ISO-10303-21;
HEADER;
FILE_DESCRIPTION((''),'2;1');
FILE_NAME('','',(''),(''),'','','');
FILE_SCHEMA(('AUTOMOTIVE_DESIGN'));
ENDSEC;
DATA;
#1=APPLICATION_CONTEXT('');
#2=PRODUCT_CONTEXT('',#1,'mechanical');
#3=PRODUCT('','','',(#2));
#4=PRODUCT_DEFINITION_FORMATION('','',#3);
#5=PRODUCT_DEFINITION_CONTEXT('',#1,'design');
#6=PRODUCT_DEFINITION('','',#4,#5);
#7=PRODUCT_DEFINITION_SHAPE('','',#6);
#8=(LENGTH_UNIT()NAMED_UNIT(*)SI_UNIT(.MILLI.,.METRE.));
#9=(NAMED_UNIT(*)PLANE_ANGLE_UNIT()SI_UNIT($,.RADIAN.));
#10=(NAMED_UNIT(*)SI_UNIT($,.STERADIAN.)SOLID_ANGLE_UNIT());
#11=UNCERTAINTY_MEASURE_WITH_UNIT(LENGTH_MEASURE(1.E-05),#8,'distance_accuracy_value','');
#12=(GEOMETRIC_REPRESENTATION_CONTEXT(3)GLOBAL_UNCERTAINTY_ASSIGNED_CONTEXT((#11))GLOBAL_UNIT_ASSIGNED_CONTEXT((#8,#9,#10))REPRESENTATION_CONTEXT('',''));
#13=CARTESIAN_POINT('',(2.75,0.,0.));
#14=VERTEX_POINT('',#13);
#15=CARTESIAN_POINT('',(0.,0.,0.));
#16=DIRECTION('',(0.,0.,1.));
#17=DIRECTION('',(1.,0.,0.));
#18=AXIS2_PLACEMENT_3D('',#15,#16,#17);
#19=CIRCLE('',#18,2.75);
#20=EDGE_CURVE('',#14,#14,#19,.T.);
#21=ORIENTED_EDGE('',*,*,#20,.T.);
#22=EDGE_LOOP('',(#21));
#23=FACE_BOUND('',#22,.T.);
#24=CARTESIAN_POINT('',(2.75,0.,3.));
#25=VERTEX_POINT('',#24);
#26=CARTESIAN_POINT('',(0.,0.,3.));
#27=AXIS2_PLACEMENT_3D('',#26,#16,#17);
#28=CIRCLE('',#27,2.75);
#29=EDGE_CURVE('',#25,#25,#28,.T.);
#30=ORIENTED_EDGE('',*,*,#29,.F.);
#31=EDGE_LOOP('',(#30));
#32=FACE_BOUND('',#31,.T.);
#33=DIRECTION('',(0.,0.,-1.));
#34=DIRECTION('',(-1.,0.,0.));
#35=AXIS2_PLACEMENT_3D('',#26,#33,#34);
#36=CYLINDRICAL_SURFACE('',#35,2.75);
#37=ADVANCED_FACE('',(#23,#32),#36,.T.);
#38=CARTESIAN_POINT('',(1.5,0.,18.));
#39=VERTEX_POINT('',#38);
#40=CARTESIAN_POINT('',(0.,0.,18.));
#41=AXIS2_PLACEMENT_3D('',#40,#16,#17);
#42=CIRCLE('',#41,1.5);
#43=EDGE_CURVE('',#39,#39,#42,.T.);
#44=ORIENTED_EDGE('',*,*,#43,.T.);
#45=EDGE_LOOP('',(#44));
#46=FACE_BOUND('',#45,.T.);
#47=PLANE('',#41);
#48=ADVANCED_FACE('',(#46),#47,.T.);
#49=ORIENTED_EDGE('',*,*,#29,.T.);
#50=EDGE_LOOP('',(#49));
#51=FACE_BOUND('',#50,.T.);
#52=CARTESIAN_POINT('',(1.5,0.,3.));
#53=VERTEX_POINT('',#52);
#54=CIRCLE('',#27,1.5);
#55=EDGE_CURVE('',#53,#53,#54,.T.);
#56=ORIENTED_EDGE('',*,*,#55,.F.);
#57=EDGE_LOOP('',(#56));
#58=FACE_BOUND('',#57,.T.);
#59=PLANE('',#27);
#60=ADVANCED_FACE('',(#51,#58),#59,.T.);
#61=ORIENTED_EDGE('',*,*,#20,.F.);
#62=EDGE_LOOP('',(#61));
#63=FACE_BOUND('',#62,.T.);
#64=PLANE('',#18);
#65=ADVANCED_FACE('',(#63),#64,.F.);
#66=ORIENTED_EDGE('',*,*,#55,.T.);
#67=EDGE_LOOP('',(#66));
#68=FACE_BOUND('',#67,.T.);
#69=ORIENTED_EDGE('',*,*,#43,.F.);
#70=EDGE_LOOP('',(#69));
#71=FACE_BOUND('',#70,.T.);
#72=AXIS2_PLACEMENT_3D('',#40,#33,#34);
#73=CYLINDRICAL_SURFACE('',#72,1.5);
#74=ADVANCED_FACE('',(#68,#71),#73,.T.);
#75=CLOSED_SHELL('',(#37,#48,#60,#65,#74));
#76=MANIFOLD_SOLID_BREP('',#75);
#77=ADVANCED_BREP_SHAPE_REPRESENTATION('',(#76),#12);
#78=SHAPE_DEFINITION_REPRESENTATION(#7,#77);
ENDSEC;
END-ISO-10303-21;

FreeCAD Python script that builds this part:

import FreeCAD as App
import Part
import Sketcher
Q = App.Units.Quantity

doc = App.newDocument("Part")
body = doc.addObject("PartDesign::Body", "Body")

sketch1 = doc.addObject("Sketcher::SketchObject", "Sketch")
body.addObject(sketch1)
sketch1.AttachmentSupport = (doc.XY_Plane, [""])
sketch1.MapMode = "FlatFace"
sketch1.addGeometry(Part.Circle(App.Vector(0, 0, 0), App.Vector(0, 0, 1), 2.75), False)
sketch1.addConstraint(Sketcher.Constraint("Coincident", 0, 3, -1, 1))
sketch1.addConstraint(Sketcher.Constraint("Diameter", 0, Q("5.5 mm")))
pad1 = doc.addObject("PartDesign::Pad", "Pad")
body.addObject(pad1)
pad1.Profile = sketch1
pad1.Length = 3

sketch2 = doc.addObject("Sketcher::SketchObject", "Sketch001")
body.addObject(sketch2)
sketch2.AttachmentSupport = (doc.XY_Plane, [""])
sketch2.MapMode = "FlatFace"
sketch2.AttachmentOffset = App.Placement(App.Vector(0, 0, 3), App.Rotation())
sketch2.addGeometry(Part.Circle(App.Vector(0, 0, 0), App.Vector(0, 0, 1), 1.5), False)
sketch2.addConstraint(Sketcher.Constraint("Coincident", 0, 3, -1, 1))
sketch2.addConstraint(Sketcher.Constraint("Diameter", 0, Q("3 mm")))
pad2 = doc.addObject("PartDesign::Pad", "Pad001")
body.addObject(pad2)
pad2.Profile = sketch2
pad2.Length = 15

doc.recompute()
